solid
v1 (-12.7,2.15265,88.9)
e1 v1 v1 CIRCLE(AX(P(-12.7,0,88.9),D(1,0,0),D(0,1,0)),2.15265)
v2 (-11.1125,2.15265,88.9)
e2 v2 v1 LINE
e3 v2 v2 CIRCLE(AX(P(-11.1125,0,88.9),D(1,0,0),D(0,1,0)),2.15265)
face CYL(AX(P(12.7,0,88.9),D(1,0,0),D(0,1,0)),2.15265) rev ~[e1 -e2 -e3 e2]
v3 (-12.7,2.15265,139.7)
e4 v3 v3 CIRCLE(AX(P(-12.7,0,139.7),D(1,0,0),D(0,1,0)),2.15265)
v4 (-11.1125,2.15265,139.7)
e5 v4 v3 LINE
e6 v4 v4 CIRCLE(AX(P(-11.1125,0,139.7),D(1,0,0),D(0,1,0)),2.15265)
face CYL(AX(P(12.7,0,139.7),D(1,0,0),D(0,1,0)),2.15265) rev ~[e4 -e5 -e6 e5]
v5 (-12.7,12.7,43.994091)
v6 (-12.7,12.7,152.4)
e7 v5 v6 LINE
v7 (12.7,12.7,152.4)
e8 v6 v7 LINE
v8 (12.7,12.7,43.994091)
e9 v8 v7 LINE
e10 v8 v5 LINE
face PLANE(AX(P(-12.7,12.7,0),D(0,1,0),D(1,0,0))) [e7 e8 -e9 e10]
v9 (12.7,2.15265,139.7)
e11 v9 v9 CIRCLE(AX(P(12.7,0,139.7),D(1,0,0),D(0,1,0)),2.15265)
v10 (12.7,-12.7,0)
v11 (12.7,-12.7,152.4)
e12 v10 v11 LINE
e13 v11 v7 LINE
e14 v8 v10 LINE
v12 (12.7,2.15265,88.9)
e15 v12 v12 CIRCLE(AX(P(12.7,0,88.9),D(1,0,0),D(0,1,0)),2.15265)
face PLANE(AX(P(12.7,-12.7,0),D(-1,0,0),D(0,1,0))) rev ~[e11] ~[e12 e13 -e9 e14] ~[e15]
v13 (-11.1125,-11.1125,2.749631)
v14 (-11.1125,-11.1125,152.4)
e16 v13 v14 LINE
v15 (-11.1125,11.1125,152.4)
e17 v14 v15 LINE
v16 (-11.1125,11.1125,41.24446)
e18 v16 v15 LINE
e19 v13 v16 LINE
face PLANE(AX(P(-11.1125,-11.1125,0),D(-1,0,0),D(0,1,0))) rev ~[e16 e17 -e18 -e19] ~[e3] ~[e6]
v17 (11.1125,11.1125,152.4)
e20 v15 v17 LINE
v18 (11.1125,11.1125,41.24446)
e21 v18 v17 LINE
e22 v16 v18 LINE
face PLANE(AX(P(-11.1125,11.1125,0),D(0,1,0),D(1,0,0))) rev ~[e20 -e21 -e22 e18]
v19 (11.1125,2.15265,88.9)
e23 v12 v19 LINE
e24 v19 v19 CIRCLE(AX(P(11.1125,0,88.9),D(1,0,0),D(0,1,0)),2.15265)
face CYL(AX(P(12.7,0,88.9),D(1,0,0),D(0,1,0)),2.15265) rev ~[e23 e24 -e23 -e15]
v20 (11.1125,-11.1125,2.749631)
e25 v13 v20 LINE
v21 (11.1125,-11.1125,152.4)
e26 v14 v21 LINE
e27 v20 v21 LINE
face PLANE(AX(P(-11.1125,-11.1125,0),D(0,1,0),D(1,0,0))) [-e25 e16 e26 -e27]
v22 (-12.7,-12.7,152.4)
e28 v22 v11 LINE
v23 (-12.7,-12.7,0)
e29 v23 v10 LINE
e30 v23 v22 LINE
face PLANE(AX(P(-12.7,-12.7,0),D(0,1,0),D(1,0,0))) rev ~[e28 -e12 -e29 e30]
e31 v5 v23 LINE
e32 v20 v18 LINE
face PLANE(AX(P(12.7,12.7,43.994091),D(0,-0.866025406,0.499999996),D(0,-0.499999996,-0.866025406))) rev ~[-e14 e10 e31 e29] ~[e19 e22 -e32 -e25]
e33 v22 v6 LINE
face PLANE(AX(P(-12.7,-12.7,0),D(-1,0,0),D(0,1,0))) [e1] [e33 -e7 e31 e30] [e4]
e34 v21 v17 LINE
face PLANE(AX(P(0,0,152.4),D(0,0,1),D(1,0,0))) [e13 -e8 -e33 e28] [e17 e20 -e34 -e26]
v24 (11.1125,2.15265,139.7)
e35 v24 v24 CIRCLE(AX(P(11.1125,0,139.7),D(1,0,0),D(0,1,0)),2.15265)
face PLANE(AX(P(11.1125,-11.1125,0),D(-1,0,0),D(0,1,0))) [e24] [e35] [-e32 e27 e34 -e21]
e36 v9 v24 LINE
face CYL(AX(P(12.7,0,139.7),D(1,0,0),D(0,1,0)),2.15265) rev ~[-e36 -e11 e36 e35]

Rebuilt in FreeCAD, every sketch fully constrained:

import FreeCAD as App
import Part
import Sketcher

V = App.Vector
Q = App.Units.Quantity


def add_polygon(sketch, points):
    """Adds a closed chain of lines whose ends are joined by coincident constraints."""
    first, n = sketch.GeometryCount, len(points)
    for a, b in zip(points, points[1:] + points[:1]):
        sketch.addGeometry(Part.LineSegment(App.Vector(*a, 0), App.Vector(*b, 0)), False)
    for i in range(n):
        sketch.addConstraint(Sketcher.Constraint("Coincident", first + i, 2, first + (i + 1) % n, 1))

doc = App.newDocument("Part")
body = doc.addObject("PartDesign::Body", "Body")

sketch1 = body.newObject("Sketcher::SketchObject", "Sketch")
sketch1.AttachmentSupport = (doc.getObject("XY_Plane"), [""])
sketch1.MapMode = "FlatFace"
add_polygon(sketch1, [(-12.7, 12.7), (-12.7, -12.7), (12.7, -12.7), (12.7, 12.7)])
add_polygon(sketch1, [(11.1125, -11.1125), (-11.1125, -11.1125), (-11.1125, 11.1125), (11.1125, 11.1125)])
sketch1.addConstraint([
    Sketcher.Constraint("Vertical", 0),
    Sketcher.Constraint("Horizontal", 1),
    Sketcher.Constraint("Vertical", 2),
    Sketcher.Constraint("Horizontal", 3),
    Sketcher.Constraint("Horizontal", 4),
    Sketcher.Constraint("Vertical", 5),
    Sketcher.Constraint("Horizontal", 6),
    Sketcher.Constraint("Vertical", 7),
    Sketcher.Constraint("Symmetric", 0, 2, 2, 2, -1, 1),
    Sketcher.Constraint("Symmetric", 4, 2, 6, 2, -1, 1),
    Sketcher.Constraint("Equal", 3, 0),
    Sketcher.Constraint("Equal", 6, 5),
    Sketcher.Constraint("DistanceX", 1, 1, 1, 2, Q("1 in")),
    Sketcher.Constraint("DistanceX", 4, 2, 4, 1, Q("0.875 in")),
])
pad1 = body.newObject("PartDesign::Pad", "Pad")
pad1.Profile = sketch1
pad1.Length = Q("6 in")

sketch2 = body.newObject("Sketcher::SketchObject", "Sketch001")
sketch2.AttachmentSupport = (doc.getObject("YZ_Plane"), [""])
sketch2.MapMode = "FlatFace"
sketch2.AttachmentOffset = App.Placement(V(0, 0, 0.5 * 25.4), App.Rotation())
add_polygon(sketch2, [(12.7, 43.994091), (-12.7, 0), (12.7, 0)])
sketch2.addConstraint([
    Sketcher.Constraint("Horizontal", 1),
    Sketcher.Constraint("Vertical", 2),
    Sketcher.Constraint("Symmetric", 0, 2, 1, 2, -1, 1),
    Sketcher.Constraint("DistanceX", 1, 1, 1, 2, Q("1 in")),
    Sketcher.Constraint("Distance", 0, Q("2 in")),
])
pocket1 = body.newObject("PartDesign::Pocket", "Pocket")
pocket1.Profile = sketch2
pocket1.Type = "ThroughAll"

sketch3 = body.newObject("Sketcher::SketchObject", "Sketch002")
sketch3.AttachmentSupport = (doc.getObject("YZ_Plane"), [""])
sketch3.MapMode = "FlatFace"
sketch3.AttachmentOffset = App.Placement(V(0, 0, 0.5 * 25.4), App.Rotation())
sketch3.addGeometry([
    Part.Circle(V(0, 139.7, 0), V(0, 0, 1), 2.15265),
    Part.Circle(V(0, 88.9, 0), V(0, 0, 1), 2.15265),
], False)
sketch3.addConstraint([
    Sketcher.Constraint("Equal", 0, 1),
    Sketcher.Constraint("PointOnObject", 0, 3, -2),
    Sketcher.Constraint("PointOnObject", 1, 3, -2),
    Sketcher.Constraint("DistanceY", 1, 3, 0, 3, Q("2 in")),
    Sketcher.Constraint("Diameter", 0, Q("0.1695 in")),
    Sketcher.Constraint("DistanceY", -1, 1, 0, 3, Q("5.5 in")),
])
pocket2 = body.newObject("PartDesign::Pocket", "Pocket001")
pocket2.Profile = sketch3
pocket2.Type = "ThroughAll"

doc.recompute()
